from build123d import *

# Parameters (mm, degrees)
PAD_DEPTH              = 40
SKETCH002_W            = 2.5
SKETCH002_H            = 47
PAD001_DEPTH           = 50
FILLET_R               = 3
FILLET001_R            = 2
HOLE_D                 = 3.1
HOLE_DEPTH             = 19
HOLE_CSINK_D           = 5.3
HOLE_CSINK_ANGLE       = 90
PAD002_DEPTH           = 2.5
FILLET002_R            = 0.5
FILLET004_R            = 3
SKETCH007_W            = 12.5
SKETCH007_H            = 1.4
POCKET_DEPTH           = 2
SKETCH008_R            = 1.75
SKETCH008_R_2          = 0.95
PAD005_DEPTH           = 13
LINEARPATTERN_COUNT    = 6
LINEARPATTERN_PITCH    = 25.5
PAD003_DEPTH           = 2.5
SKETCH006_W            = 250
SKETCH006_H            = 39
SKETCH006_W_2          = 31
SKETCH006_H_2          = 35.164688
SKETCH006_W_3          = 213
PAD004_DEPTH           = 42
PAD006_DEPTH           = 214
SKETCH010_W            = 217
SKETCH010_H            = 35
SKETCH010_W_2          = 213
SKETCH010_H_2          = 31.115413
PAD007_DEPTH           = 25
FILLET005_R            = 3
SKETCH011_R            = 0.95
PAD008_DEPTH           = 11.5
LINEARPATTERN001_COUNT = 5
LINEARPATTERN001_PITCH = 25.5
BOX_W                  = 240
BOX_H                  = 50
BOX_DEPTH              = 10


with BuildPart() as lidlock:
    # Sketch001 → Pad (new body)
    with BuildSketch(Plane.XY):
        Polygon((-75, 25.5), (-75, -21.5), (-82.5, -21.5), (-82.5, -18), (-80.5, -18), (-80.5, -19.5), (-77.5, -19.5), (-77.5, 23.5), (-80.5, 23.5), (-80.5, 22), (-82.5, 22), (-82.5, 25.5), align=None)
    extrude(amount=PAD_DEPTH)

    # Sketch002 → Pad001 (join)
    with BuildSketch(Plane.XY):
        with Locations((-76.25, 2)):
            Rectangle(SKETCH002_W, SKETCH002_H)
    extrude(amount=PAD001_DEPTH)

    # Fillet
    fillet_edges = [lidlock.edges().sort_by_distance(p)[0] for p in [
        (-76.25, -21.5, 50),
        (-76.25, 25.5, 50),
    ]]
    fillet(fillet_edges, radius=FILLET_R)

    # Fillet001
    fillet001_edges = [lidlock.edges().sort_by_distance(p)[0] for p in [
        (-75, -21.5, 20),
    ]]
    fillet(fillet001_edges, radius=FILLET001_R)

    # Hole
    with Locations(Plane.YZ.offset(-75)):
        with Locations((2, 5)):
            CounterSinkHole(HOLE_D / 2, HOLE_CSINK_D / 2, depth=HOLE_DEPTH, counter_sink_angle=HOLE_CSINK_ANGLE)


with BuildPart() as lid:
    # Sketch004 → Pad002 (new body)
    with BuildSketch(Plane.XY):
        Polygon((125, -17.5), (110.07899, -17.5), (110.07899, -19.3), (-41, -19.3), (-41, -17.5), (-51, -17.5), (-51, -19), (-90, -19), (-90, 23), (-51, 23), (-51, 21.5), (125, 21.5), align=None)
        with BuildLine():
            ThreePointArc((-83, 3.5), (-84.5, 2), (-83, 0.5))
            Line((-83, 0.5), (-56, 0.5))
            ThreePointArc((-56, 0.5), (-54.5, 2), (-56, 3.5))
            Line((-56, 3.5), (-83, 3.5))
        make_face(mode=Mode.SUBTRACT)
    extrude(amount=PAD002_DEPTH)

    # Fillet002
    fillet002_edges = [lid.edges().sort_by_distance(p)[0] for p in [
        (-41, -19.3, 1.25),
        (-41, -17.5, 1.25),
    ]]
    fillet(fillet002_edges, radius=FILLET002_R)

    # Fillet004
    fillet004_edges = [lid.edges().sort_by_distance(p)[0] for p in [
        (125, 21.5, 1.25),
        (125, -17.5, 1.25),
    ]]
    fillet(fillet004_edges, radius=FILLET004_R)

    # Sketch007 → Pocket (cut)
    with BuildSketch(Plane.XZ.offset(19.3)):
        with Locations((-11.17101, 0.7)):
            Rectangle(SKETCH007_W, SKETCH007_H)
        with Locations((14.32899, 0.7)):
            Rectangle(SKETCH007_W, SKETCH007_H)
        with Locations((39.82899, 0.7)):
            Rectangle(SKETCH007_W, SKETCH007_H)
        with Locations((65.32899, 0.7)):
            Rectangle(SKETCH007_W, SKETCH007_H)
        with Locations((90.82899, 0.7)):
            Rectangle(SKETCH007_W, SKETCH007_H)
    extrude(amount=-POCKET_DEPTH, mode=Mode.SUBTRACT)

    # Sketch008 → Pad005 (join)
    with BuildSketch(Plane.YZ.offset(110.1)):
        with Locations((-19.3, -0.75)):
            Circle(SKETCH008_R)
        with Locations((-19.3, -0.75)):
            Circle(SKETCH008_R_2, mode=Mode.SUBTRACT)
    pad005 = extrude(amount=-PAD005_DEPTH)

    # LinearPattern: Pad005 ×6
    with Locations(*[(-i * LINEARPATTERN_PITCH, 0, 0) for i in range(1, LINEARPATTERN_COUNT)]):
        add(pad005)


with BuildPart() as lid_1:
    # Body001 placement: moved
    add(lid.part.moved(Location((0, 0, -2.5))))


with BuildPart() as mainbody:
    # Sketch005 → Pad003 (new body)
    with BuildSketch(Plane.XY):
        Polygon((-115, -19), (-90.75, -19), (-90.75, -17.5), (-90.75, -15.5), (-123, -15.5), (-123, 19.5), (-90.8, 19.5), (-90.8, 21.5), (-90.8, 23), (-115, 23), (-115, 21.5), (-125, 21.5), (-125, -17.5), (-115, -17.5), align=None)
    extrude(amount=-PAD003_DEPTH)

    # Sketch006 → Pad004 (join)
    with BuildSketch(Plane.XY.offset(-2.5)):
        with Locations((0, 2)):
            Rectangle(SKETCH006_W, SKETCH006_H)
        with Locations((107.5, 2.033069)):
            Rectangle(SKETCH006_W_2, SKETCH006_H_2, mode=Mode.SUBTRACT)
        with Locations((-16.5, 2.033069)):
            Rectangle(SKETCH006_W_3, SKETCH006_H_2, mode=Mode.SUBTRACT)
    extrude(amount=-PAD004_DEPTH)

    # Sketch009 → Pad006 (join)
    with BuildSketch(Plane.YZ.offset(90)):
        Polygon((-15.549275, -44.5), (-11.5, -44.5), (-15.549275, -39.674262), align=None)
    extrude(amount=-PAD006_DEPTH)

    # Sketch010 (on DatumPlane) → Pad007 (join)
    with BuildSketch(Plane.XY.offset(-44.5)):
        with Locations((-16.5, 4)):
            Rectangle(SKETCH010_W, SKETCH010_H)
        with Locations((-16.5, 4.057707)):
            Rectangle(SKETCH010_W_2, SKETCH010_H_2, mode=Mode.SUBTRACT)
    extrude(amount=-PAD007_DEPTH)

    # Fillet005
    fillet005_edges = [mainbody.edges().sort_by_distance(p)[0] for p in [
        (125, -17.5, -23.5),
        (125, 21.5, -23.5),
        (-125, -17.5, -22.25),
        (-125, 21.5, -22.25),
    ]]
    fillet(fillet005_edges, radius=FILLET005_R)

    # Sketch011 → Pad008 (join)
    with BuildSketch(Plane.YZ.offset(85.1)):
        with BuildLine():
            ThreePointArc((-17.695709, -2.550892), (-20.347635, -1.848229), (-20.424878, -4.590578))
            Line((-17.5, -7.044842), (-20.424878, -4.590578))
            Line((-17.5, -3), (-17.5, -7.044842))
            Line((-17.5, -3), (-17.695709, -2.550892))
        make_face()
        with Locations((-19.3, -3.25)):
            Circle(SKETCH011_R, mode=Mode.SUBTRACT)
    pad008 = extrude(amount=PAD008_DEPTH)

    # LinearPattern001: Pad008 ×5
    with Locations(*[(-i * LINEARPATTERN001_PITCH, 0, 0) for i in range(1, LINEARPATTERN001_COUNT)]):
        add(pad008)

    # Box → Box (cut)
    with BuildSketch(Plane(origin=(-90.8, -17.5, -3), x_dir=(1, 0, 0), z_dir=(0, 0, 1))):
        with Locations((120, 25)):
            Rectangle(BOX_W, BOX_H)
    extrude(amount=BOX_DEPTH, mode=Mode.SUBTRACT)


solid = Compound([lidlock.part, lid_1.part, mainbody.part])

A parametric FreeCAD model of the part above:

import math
import FreeCAD as App
import Part
import Sketcher

V = App.Vector
Q = App.Units.Quantity


def edges_at(feature, points):
    """Names of the edges that pass closest to the given points."""
    edges = feature.Shape.Edges
    near = lambda p: min(range(len(edges)), key=lambda i: edges[i].distToShape(Part.Vertex(*p))[0])
    return sorted({f"Edge{near(p) + 1}" for p in points})

doc = App.newDocument("Part")
body = doc.addObject("PartDesign::Body", "Body")

# Sketch on XY plane
sketch1 = body.newObject("Sketcher::SketchObject", "Sketch")
sketch1.AttachmentSupport = (doc.getObject("XY_Plane"), [""])
sketch1.MapMode = "FlatFace"
sketch1.addGeometry([
    Part.LineSegment(V(-75, -21.5, 0), V(-75, 25.5, 0)),  # 0
    Part.LineSegment(V(-75, 25.5, 0), V(-82.5, 25.5, 0)),  # 1
    Part.LineSegment(V(-82.5, 25.5, 0), V(-82.5, 22, 0)),  # 2
    Part.LineSegment(V(-82.5, 22, 0), V(-80.5, 22, 0)),  # 3
    Part.LineSegment(V(-80.5, 22, 0), V(-80.5, 23.5, 0)),  # 4
    Part.LineSegment(V(-80.5, 23.5, 0), V(-77.5, 23.5, 0)),  # 5
    Part.LineSegment(V(-77.5, 23.5, 0), V(-77.5, -19.5, 0)),  # 6
    Part.LineSegment(V(-77.5, -19.5, 0), V(-80.5, -19.5, 0)),  # 7
    Part.LineSegment(V(-80.5, -19.5, 0), V(-80.5, -18, 0)),  # 8
    Part.LineSegment(V(-80.5, -18, 0), V(-82.5, -18, 0)),  # 9
    Part.LineSegment(V(-82.5, -18, 0), V(-82.5, -21.5, 0)),  # 10
    Part.LineSegment(V(-82.5, -21.5, 0), V(-75, -21.5, 0)),  # 11
], False)
sketch1.addConstraint([
    Sketcher.Constraint("Coincident", 0, 2, 1, 1),
    Sketcher.Constraint("Coincident", 1, 2, 2, 1),
    Sketcher.Constraint("Coincident", 2, 2, 3, 1),
    Sketcher.Constraint("Coincident", 3, 2, 4, 1),
    Sketcher.Constraint("Coincident", 4, 2, 5, 1),
    Sketcher.Constraint("Coincident", 5, 2, 6, 1),
    Sketcher.Constraint("Coincident", 6, 2, 7, 1),
    Sketcher.Constraint("Coincident", 7, 2, 8, 1),
    Sketcher.Constraint("Coincident", 8, 2, 9, 1),
    Sketcher.Constraint("Coincident", 9, 2, 10, 1),
    Sketcher.Constraint("Coincident", 10, 2, 11, 1),
    Sketcher.Constraint("Coincident", 11, 2, 0, 1),
    Sketcher.Constraint("Vertical", 0),
    Sketcher.Constraint("Horizontal", 1),
    Sketcher.Constraint("Vertical", 2),
    Sketcher.Constraint("Horizontal", 3),
    Sketcher.Constraint("Vertical", 4),
    Sketcher.Constraint("Horizontal", 5),
    Sketcher.Constraint("Vertical", 6),
    Sketcher.Constraint("Horizontal", 7),
    Sketcher.Constraint("Vertical", 8),
    Sketcher.Constraint("Horizontal", 9),
    Sketcher.Constraint("Vertical", 10),
    Sketcher.Constraint("Horizontal", 11),
    Sketcher.Constraint("Vertical", 4, 2, 7, 2),
    Sketcher.Constraint("Vertical", 2, 2, 9, 2),
    Sketcher.Constraint("Equal", 4, 8),
    Sketcher.Constraint("Equal", 2, 10),
    Sketcher.Constraint("DistanceX", 3, 1, 3, 2, 2.0),
    Sketcher.Constraint("DistanceX", 5, 1, 5, 2, 3.0),
    Sketcher.Constraint("DistanceY", 0, 1, 0, 2, 47.0),
    Sketcher.Constraint("DistanceY", 6, 2, 6, 1, 43.0),
    Sketcher.Constraint("DistanceX", 1, 2, 1, 1, 7.5),
    Sketcher.Constraint("DistanceY", 2, 2, 2, 1, 3.5),
    Sketcher.Constraint("DistanceX", 0, 2, -1, 1, 75.0),
    Sketcher.Constraint("DistanceY", -1, 1, 2, 2, 22.0),
])
pad1 = body.newObject("PartDesign::Pad", "Pad")
pad1.Profile = sketch1
pad1.Length = 40

# Sketch on XY plane
sketch2 = body.newObject("Sketcher::SketchObject", "Sketch001")
sketch2.AttachmentSupport = (doc.getObject("XY_Plane"), [""])
sketch2.MapMode = "FlatFace"
sketch2.addGeometry([
    Part.LineSegment(V(-77.5, 25.5, 0), V(-77.5, -21.5, 0)),
    Part.LineSegment(V(-77.5, -21.5, 0), V(-75, -21.5, 0)),
    Part.LineSegment(V(-75, -21.5, 0), V(-75, 25.5, 0)),
    Part.LineSegment(V(-75, 25.5, 0), V(-77.5, 25.5, 0)),
], False)
sketch2.addConstraint([
    Sketcher.Constraint("Coincident", 0, 2, 1, 1),
    Sketcher.Constraint("Coincident", 1, 2, 2, 1),
    Sketcher.Constraint("Coincident", 2, 2, 3, 1),
    Sketcher.Constraint("Coincident", 3, 2, 0, 1),
    Sketcher.Constraint("Vertical", 0),
    Sketcher.Constraint("Horizontal", 1),
    Sketcher.Constraint("Vertical", 2),
    Sketcher.Constraint("Horizontal", 3),
    Sketcher.Constraint("DistanceY", 0, 2, 0, 1, 47.0),
    Sketcher.Constraint("DistanceX", 1, 1, 1, 2, 2.5),
    Sketcher.Constraint("DistanceX", 1, 2, -1, 1, 75.0),
    Sketcher.Constraint("DistanceY", 0, 2, -1, 1, 21.5),
])
pad2 = body.newObject("PartDesign::Pad", "Pad001")
pad2.Profile = sketch2
pad2.Length = 50
doc.recompute()

fillet = body.newObject("PartDesign::Fillet", "Fillet")
fillet.Base = (pad2, edges_at(pad2, [(-76.25, -21.5, 50), (-76.25, 25.5, 50)]))
fillet.Radius = 3
doc.recompute()

fillet2 = body.newObject("PartDesign::Fillet", "Fillet001")
fillet2.Base = (fillet, edges_at(fillet, [(-75, -21.5, 23.5)]))
fillet2.Radius = 2

# Sketch on YZ plane
sketch3 = body.newObject("Sketcher::SketchObject", "Sketch002")
sketch3.AttachmentSupport = (doc.getObject("YZ_Plane"), [""])
sketch3.MapMode = "FlatFace"
sketch3.AttachmentOffset = App.Placement(V(0, 0, -75), App.Rotation())
sketch3.addGeometry(Part.Circle(V(2, 5, 0), V(0, 0, 1), 1.55), False)
sketch3.addConstraint([
    Sketcher.Constraint("Diameter", 0, 3.1),
    Sketcher.Constraint("DistanceX", -1, 1, 0, 3, 2.0),
    Sketcher.Constraint("DistanceY", -1, 1, 0, 3, 5.0),
])
doc.recompute()
hole = body.newObject("PartDesign::Hole", "Hole")
hole.Profile = sketch3
hole.ThreadType = "None"
hole.Diameter = 3.1
hole.DepthType = "Dimension"
hole.Depth = 19
hole.DrillPoint = "Flat"
hole.HoleCutType = "Countersink"
hole.HoleCutDiameter = 5.3
hole.HoleCutCountersinkAngle = 90
body2 = doc.addObject("PartDesign::Body", "Body001")

# Sketch on XY plane
sketch4 = body2.newObject("Sketcher::SketchObject", "Sketch003")
sketch4.AttachmentSupport = (doc.getObject("XY_Plane001"), [""])
sketch4.MapMode = "FlatFace"
sketch4.addGeometry([
    Part.LineSegment(V(110.07899, -17.5, 0), V(125, -17.5, 0)),  # 0
    Part.LineSegment(V(125, -17.5, 0), V(125, 21.5, 0)),  # 1
    Part.LineSegment(V(125, 21.5, 0), V(-51, 21.5, 0)),  # 2
    Part.LineSegment(V(-51, 21.5, 0), V(-51, 23, 0)),  # 3
    Part.LineSegment(V(-51, 23, 0), V(-90, 23, 0)),  # 4
    Part.LineSegment(V(-90, 23, 0), V(-90, -19, 0)),  # 5
    Part.LineSegment(V(-90, -19, 0), V(-51, -19, 0)),  # 6
    Part.LineSegment(V(-51, -19, 0), V(-51, -17.5, 0)),  # 7
    Part.LineSegment(V(-51, -17.5, 0), V(-41, -17.5, 0)),  # 8
    Part.LineSegment(V(-41, -17.5, 0), V(-41, -19.3, 0)),  # 9
    Part.LineSegment(V(-41, -19.3, 0), V(110.07899, -19.3, 0)),  # 10
    Part.LineSegment(V(110.07899, -19.3, 0), V(110.07899, -17.5, 0)),  # 11
    Part.LineSegment(V(-83, 3.5, 0), V(-56, 3.5, 0)),  # 12
    Part.ArcOfCircle(Part.Circle(V(-56, 2, 0), V(0, 0, 1), 1.5), math.radians(-90), math.radians(90)),  # 13
    Part.LineSegment(V(-56, 0.5, 0), V(-83, 0.5, 0)),  # 14
    Part.ArcOfCircle(Part.Circle(V(-83, 2, 0), V(0, 0, 1), 1.5), math.radians(90), math.radians(270)),  # 15
], False)
sketch4.addConstraint([
    Sketcher.Constraint("Coincident", 0, 2, 1, 1),
    Sketcher.Constraint("Coincident", 1, 2, 2, 1),
    Sketcher.Constraint("Coincident", 2, 2, 3, 1),
    Sketcher.Constraint("Coincident", 3, 2, 4, 1),
    Sketcher.Constraint("Coincident", 4, 2, 5, 1),
    Sketcher.Constraint("Coincident", 5, 2, 6, 1),
    Sketcher.Constraint("Coincident", 6, 2, 7, 1),
    Sketcher.Constraint("Coincident", 7, 2, 8, 1),
    Sketcher.Constraint("Coincident", 8, 2, 9, 1),
    Sketcher.Constraint("Coincident", 9, 2, 10, 1),
    Sketcher.Constraint("Coincident", 10, 2, 11, 1),
    Sketcher.Constraint("Coincident", 11, 2, 0, 1),
    Sketcher.Constraint("Tangent", 12, 2, 13, 2),
    Sketcher.Constraint("Tangent", 13, 1, 14, 1),
    Sketcher.Constraint("Tangent", 14, 2, 15, 2),
    Sketcher.Constraint("Tangent", 15, 1, 12, 1),
    Sketcher.Constraint("Horizontal", 0),
    Sketcher.Constraint("Vertical", 1),
    Sketcher.Constraint("Horizontal", 2),
    Sketcher.Constraint("Vertical", 3),
    Sketcher.Constraint("Horizontal", 4),
    Sketcher.Constraint("Vertical", 5),
    Sketcher.Constraint("Horizontal", 6),
    Sketcher.Constraint("Vertical", 7),
    Sketcher.Constraint("Horizontal", 8),
    Sketcher.Constraint("Vertical", 9),
    Sketcher.Constraint("Horizontal", 10),
    Sketcher.Constraint("Vertical", 11),
    Sketcher.Constraint("Horizontal", 12),
    Sketcher.Constraint("Horizontal", 14),
    Sketcher.Constraint("Horizontal", 0, 2, 7, 2),
    Sketcher.Constraint("Vertical", 3, 2, 6, 2),
    Sketcher.Constraint("Equal", 6, 1),
    Sketcher.Constraint("Equal", 3, 7),
    Sketcher.Constraint("Radius", 13, 1.5),
    Sketcher.Constraint("DistanceX", 2, 2, 2, 1, 176.0),
    Sketcher.Constraint("DistanceX", 4, 2, 4, 1, 39.0),
    Sketcher.Constraint("DistanceX", 8, 1, 8, 2, 10.0),
    Sketcher.Constraint("DistanceX", 12, 1, 12, 2, 27.0),
    Sketcher.Constraint("DistanceY", 5, 2, 5, 1, 42.0),
    Sketcher.Constraint("DistanceY", 9, 2, 9, 1, 1.8),
    Sketcher.Constraint("DistanceX", 13, 3, -1, 1, 56.0),
    Sketcher.Constraint("DistanceY", -1, 1, 13, 3, 2.0),
    Sketcher.Constraint("DistanceX", -1, 1, 0, 2, 125.0),
    Sketcher.Constraint("DistanceY", -1, 1, 3, 2, 23.0),
    Sketcher.Constraint("DistanceX", 0, 1, 0, 2, 14.92101),
])
pad3 = body2.newObject("PartDesign::Pad", "Pad002")
pad3.Profile = sketch4
pad3.Length = 2.5
doc.recompute()

fillet3 = body2.newObject("PartDesign::Fillet", "Fillet002")
fillet3.Base = (pad3, edges_at(pad3, [(-41, -19.3, 1.25), (-41, -17.5, 1.25)]))
fillet3.Radius = 0.5
doc.recompute()

fillet4 = body2.newObject("PartDesign::Fillet", "Fillet003")
fillet4.Base = (fillet3, edges_at(fillet3, [(125, 21.5, 1.25), (125, -17.5, 1.25)]))
fillet4.Radius = 3

# Sketch on XZ plane
sketch5 = body2.newObject("Sketcher::SketchObject", "Sketch004")
sketch5.AttachmentSupport = (doc.getObject("XZ_Plane001"), [""])
sketch5.MapMode = "FlatFace"
sketch5.AttachmentOffset = App.Placement(V(0, 0, 19.3), App.Rotation())
sketch5.addGeometry([
    Part.LineSegment(V(-17.42101, 1.4, 0), V(-17.42101, 0, 0)),  # 0
    Part.LineSegment(V(-17.42101, 0, 0), V(-4.92101, 0, 0)),  # 1
    Part.LineSegment(V(-4.92101, 0, 0), V(-4.92101, 1.4, 0)),  # 2
    Part.LineSegment(V(-4.92101, 1.4, 0), V(-17.42101, 1.4, 0)),  # 3
    Part.LineSegment(V(8.07899, 1.4, 0), V(8.07899, 0, 0)),  # 4
    Part.LineSegment(V(8.07899, 0, 0), V(20.57899, 0, 0)),  # 5
    Part.LineSegment(V(20.57899, 0, 0), V(20.57899, 1.4, 0)),  # 6
    Part.LineSegment(V(20.57899, 1.4, 0), V(8.07899, 1.4, 0)),  # 7
    Part.LineSegment(V(33.57899, 1.4, 0), V(33.57899, 0, 0)),  # 8
    Part.LineSegment(V(33.57899, 0, 0), V(46.07899, 0, 0)),  # 9
    Part.LineSegment(V(46.07899, 0, 0), V(46.07899, 1.4, 0)),  # 10
    Part.LineSegment(V(46.07899, 1.4, 0), V(33.57899, 1.4, 0)),  # 11
    Part.LineSegment(V(59.07899, 1.4, 0), V(59.07899, 0, 0)),  # 12
    Part.LineSegment(V(59.07899, 0, 0), V(71.57899, 0, 0)),  # 13
    Part.LineSegment(V(71.57899, 0, 0), V(71.57899, 1.4, 0)),  # 14
    Part.LineSegment(V(71.57899, 1.4, 0), V(59.07899, 1.4, 0)),  # 15
    Part.LineSegment(V(84.57899, 1.4, 0), V(84.57899, 0, 0)),  # 16
    Part.LineSegment(V(84.57899, 0, 0), V(97.07899, 0, 0)),  # 17
    Part.LineSegment(V(97.07899, 0, 0), V(97.07899, 1.4, 0)),  # 18
    Part.LineSegment(V(97.07899, 1.4, 0), V(84.57899, 1.4, 0)),  # 19
], False)
sketch5.addConstraint([
    Sketcher.Constraint("Coincident", 0, 2, 1, 1),
    Sketcher.Constraint("Coincident", 1, 2, 2, 1),
    Sketcher.Constraint("Coincident", 2, 2, 3, 1),
    Sketcher.Constraint("Coincident", 3, 2, 0, 1),
    Sketcher.Constraint("Coincident", 4, 2, 5, 1),
    Sketcher.Constraint("Coincident", 5, 2, 6, 1),
    Sketcher.Constraint("Coincident", 6, 2, 7, 1),
    Sketcher.Constraint("Coincident", 7, 2, 4, 1),
    Sketcher.Constraint("Coincident", 8, 2, 9, 1),
    Sketcher.Constraint("Coincident", 9, 2, 10, 1),
    Sketcher.Constraint("Coincident", 10, 2, 11, 1),
    Sketcher.Constraint("Coincident", 11, 2, 8, 1),
    Sketcher.Constraint("Coincident", 12, 2, 13, 1),
    Sketcher.Constraint("Coincident", 13, 2, 14, 1),
    Sketcher.Constraint("Coincident", 14, 2, 15, 1),
    Sketcher.Constraint("Coincident", 15, 2, 12, 1),
    Sketcher.Constraint("Coincident", 16, 2, 17, 1),
    Sketcher.Constraint("Coincident", 17, 2, 18, 1),
    Sketcher.Constraint("Coincident", 18, 2, 19, 1),
    Sketcher.Constraint("Coincident", 19, 2, 16, 1),
    Sketcher.Constraint("Vertical", 0),
    Sketcher.Constraint("Horizontal", 1),
    Sketcher.Constraint("Vertical", 2),
    Sketcher.Constraint("Horizontal", 3),
    Sketcher.Constraint("Vertical", 4),
    Sketcher.Constraint("Horizontal", 5),
    Sketcher.Constraint("Vertical", 6),
    Sketcher.Constraint("Horizontal", 7),
    Sketcher.Constraint("Vertical", 8),
    Sketcher.Constraint("Horizontal", 9),
    Sketcher.Constraint("Vertical", 10),
    Sketcher.Constraint("Horizontal", 11),
    Sketcher.Constraint("Vertical", 12),
    Sketcher.Constraint("Horizontal", 13),
    Sketcher.Constraint("Vertical", 14),
    Sketcher.Constraint("Horizontal", 15),
    Sketcher.Constraint("Vertical", 16),
    Sketcher.Constraint("Horizontal", 17),
    Sketcher.Constraint("Vertical", 18),
    Sketcher.Constraint("Horizontal", 19),
    Sketcher.Constraint("PointOnObject", 0, 2, -1),
    Sketcher.Constraint("PointOnObject", 4, 2, -1),
    Sketcher.Constraint("PointOnObject", 8, 2, -1),
    Sketcher.Constraint("PointOnObject", 12, 2, -1),
    Sketcher.Constraint("PointOnObject", 16, 2, -1),
    Sketcher.Constraint("Horizontal", 3, 2, 6, 2),
    Sketcher.Constraint("Horizontal", 7, 2, 10, 2),
    Sketcher.Constraint("Horizontal", 11, 2, 14, 2),
    Sketcher.Constraint("Horizontal", 15, 2, 18, 2),
    Sketcher.Constraint("Equal", 3, 5),
    Sketcher.Constraint("Equal", 7, 9),
    Sketcher.Constraint("Equal", 11, 13),
    Sketcher.Constraint("Equal", 15, 17),
    Sketcher.Constraint("DistanceX", 1, 1, 1, 2, 12.5),
    Sketcher.Constraint("DistanceY", 0, 2, 0, 1, 1.4),
    Sketcher.Constraint("DistanceX", 1, 2, 4, 2, 13.0),
    Sketcher.Constraint("DistanceX", 5, 2, 8, 2, 13.0),
    Sketcher.Constraint("DistanceX", 9, 2, 12, 2, 13.0),
    Sketcher.Constraint("DistanceX", 13, 2, 16, 2, 13.0),
    Sketcher.Constraint("DistanceX", 0, 2, -1, 1, 17.42101),
])
pocket1 = body2.newObject("PartDesign::Pocket", "Pocket")
pocket1.Profile = sketch5
pocket1.Length = 2

# Sketch on YZ plane
sketch6 = body2.newObject("Sketcher::SketchObject", "Sketch005")
sketch6.AttachmentSupport = (doc.getObject("YZ_Plane001"), [""])
sketch6.MapMode = "FlatFace"
sketch6.AttachmentOffset = App.Placement(V(0, 0, 110.1), App.Rotation())
sketch6.addGeometry([
    Part.Circle(V(-19.3, -0.75, 0), V(0, 0, 1), 1.75),
    Part.Circle(V(-19.3, -0.75, 0), V(0, 0, 1), 0.95),
], False)
sketch6.addConstraint([
    Sketcher.Constraint("Coincident", 1, 3, 0, 3),
    Sketcher.Constraint("Diameter", 0, 3.5),
    Sketcher.Constraint("Diameter", 1, 1.9),
    Sketcher.Constraint("DistanceX", 0, 3, -1, 1, 19.3),
    Sketcher.Constraint("DistanceY", 0, 3, -1, 1, 0.75),
])
pad4 = body2.newObject("PartDesign::Pad", "Pad003")
pad4.Profile = sketch6
pad4.Length = 13
pad4.Reversed = True
doc.recompute()

linearpattern = body2.newObject("PartDesign::LinearPattern", "LinearPattern")
linearpattern.Originals = [pad4]
linearpattern.Direction = (doc.getObject("X_Axis001"), [""])
linearpattern.Mode = "offset"
linearpattern.Offset = 25.5
linearpattern.Occurrences = 6
linearpattern.Reversed = True
body2.Tip = linearpattern
body3 = doc.addObject("PartDesign::Body", "Body002")
doc.recompute()

body2.Placement = App.Placement(V(0, 0, -2.5), App.Rotation(V(0, 0, 1), 0))
boolean = body3.newObject("PartDesign::Boolean", "Boolean")
boolean.Type = "Fuse"
boolean.addObjects([body2])
body4 = doc.addObject("PartDesign::Body", "Body003")

# Sketch on XY plane
sketch7 = body4.newObject("Sketcher::SketchObject", "Sketch006")
sketch7.AttachmentSupport = (doc.getObject("XY_Plane003"), [""])
sketch7.MapMode = "FlatFace"
sketch7.addGeometry([
    Part.LineSegment(V(-115, -19, 0), V(-90.75, -19, 0)),  # 0
    Part.LineSegment(V(-90.75, -19, 0), V(-90.75, -15.5, 0)),  # 1
    Part.LineSegment(V(-90.75, -15.5, 0), V(-123, -15.5, 0)),  # 2
    Part.LineSegment(V(-123, -15.5, 0), V(-123, 19.5, 0)),  # 3
    Part.LineSegment(V(-123, 19.5, 0), V(-90.8, 19.5, 0)),  # 4
    Part.LineSegment(V(-90.8, 19.5, 0), V(-90.8, 23, 0)),  # 5
    Part.LineSegment(V(-90.8, 23, 0), V(-115, 23, 0)),  # 6
    Part.LineSegment(V(-115, 23, 0), V(-115, 21.5, 0)),  # 7
    Part.LineSegment(V(-115, 21.5, 0), V(-125, 21.5, 0)),  # 8
    Part.LineSegment(V(-125, 21.5, 0), V(-125, -17.5, 0)),  # 9
    Part.LineSegment(V(-125, -17.5, 0), V(-115, -17.5, 0)),  # 10
    Part.LineSegment(V(-115, -17.5, 0), V(-115, -19, 0)),  # 11
], False)
sketch7.addConstraint([
    Sketcher.Constraint("Coincident", 0, 2, 1, 1),
    Sketcher.Constraint("Coincident", 1, 2, 2, 1),
    Sketcher.Constraint("Coincident", 2, 2, 3, 1),
    Sketcher.Constraint("Coincident", 3, 2, 4, 1),
    Sketcher.Constraint("Coincident", 4, 2, 5, 1),
    Sketcher.Constraint("Coincident", 5, 2, 6, 1),
    Sketcher.Constraint("Coincident", 6, 2, 7, 1),
    Sketcher.Constraint("Coincident", 7, 2, 8, 1),
    Sketcher.Constraint("Coincident", 8, 2, 9, 1),
    Sketcher.Constraint("Coincident", 9, 2, 10, 1),
    Sketcher.Constraint("Coincident", 10, 2, 11, 1),
    Sketcher.Constraint("Coincident", 11, 2, 0, 1),
    Sketcher.Constraint("Horizontal", 0),
    Sketcher.Constraint("Vertical", 1),
    Sketcher.Constraint("Horizontal", 2),
    Sketcher.Constraint("Vertical", 3),
    Sketcher.Constraint("Horizontal", 4),
    Sketcher.Constraint("Vertical", 5),
    Sketcher.Constraint("Horizontal", 6),
    Sketcher.Constraint("Vertical", 7),
    Sketcher.Constraint("Horizontal", 8),
    Sketcher.Constraint("Vertical", 9),
    Sketcher.Constraint("Horizontal", 10),
    Sketcher.Constraint("Vertical", 11),
    Sketcher.Constraint("Vertical", 7, 2, 10, 2),
    Sketcher.Constraint("Equal", 1, 5),
    Sketcher.Constraint("Equal", 7, 11),
    Sketcher.Constraint("DistanceX", 8, 2, 8, 1, 10.0),
    Sketcher.Constraint("DistanceY", 3, 1, 3, 2, 35.0),
    Sketcher.Constraint("DistanceY", 9, 2, 9, 1, 39.0),
    Sketcher.Constraint("DistanceX", 4, 1, 4, 2, 32.2),
    Sketcher.Constraint("DistanceX", 6, 2, 6, 1, 24.2),
    Sketcher.Constraint("DistanceY", 1, 1, 1, 2, 3.5),
    Sketcher.Constraint("DistanceY", 0, 2, -1, 1, 19.0),
    Sketcher.Constraint("DistanceX", 2, 2, -1, 1, 123.0),
    Sketcher.Constraint("DistanceX", 0, 1, 0, 2, 24.25),
])
pad5 = body4.newObject("PartDesign::Pad", "Pad004")
pad5.Profile = sketch7
pad5.Length = 2.5
pad5.Reversed = True

# Sketch on XY plane
sketch8 = body4.newObject("Sketcher::SketchObject", "Sketch007")
sketch8.AttachmentSupport = (doc.getObject("XY_Plane003"), [""])
sketch8.MapMode = "FlatFace"
sketch8.AttachmentOffset = App.Placement(V(0, 0, -2.5), App.Rotation())
sketch8.addGeometry([
    Part.LineSegment(V(-125, 21.5, 0), V(-125, -17.5, 0)),  # 0
    Part.LineSegment(V(-125, -17.5, 0), V(125, -17.5, 0)),  # 1
    Part.LineSegment(V(125, -17.5, 0), V(125, 21.5, 0)),  # 2
    Part.LineSegment(V(125, 21.5, 0), V(-125, 21.5, 0)),  # 3
    Part.LineSegment(V(90, -15.549275, 0), V(-123, -15.549275, 0)),  # 4
    Part.LineSegment(V(-123, -15.549275, 0), V(-123, 19.615413, 0)),  # 5
    Part.LineSegment(V(-123, 19.615413, 0), V(90, 19.615413, 0)),  # 6
    Part.LineSegment(V(90, 19.615413, 0), V(90, -15.549275, 0)),  # 7
    Part.LineSegment(V(123, -15.549275, 0), V(92, -15.549275, 0)),  # 8
    Part.LineSegment(V(92, -15.549275, 0), V(92, 19.615413, 0)),  # 9
    Part.LineSegment(V(92, 19.615413, 0), V(123, 19.615413, 0)),  # 10
    Part.LineSegment(V(123, 19.615413, 0), V(123, -15.549275, 0)),  # 11
], False)
sketch8.addConstraint([
    Sketcher.Constraint("Coincident", 0, 2, 1, 1),
    Sketcher.Constraint("Coincident", 1, 2, 2, 1),
    Sketcher.Constraint("Coincident", 2, 2, 3, 1),
    Sketcher.Constraint("Coincident", 3, 2, 0, 1),
    Sketcher.Constraint("Coincident", 4, 2, 5, 1),
    Sketcher.Constraint("Coincident", 5, 2, 6, 1),
    Sketcher.Constraint("Coincident", 6, 2, 7, 1),
    Sketcher.Constraint("Coincident", 7, 2, 4, 1),
    Sketcher.Constraint("Coincident", 8, 2, 9, 1),
    Sketcher.Constraint("Coincident", 9, 2, 10, 1),
    Sketcher.Constraint("Coincident", 10, 2, 11, 1),
    Sketcher.Constraint("Coincident", 11, 2, 8, 1),
    Sketcher.Constraint("Vertical", 0),
    Sketcher.Constraint("Horizontal", 1),
    Sketcher.Constraint("Vertical", 2),
    Sketcher.Constraint("Horizontal", 3),
    Sketcher.Constraint("Horizontal", 4),
    Sketcher.Constraint("Vertical", 5),
    Sketcher.Constraint("Horizontal", 6),
    Sketcher.Constraint("Vertical", 7),
    Sketcher.Constraint("Horizontal", 8),
    Sketcher.Constraint("Vertical", 9),
    Sketcher.Constraint("Horizontal", 10),
    Sketcher.Constraint("Vertical", 11),
    Sketcher.Constraint("Symmetric", 5, 2, 10, 2, -2),
    Sketcher.Constraint("Horizontal", 7, 2, 8, 2),
    Sketcher.Constraint("DistanceX", 1, 1, 1, 2, 250.0),
    Sketcher.Constraint("DistanceX", 4, 2, 4, 1, 213.0),
    Sketcher.Constraint("DistanceX", 8, 2, 8, 1, 31.0),
    Sketcher.Constraint("DistanceY", 0, 2, 0, 1, 39.0),
    Sketcher.Constraint("DistanceX", 0, 2, -1, 1, 125.0),
    Sketcher.Constraint("DistanceX", 4, 2, -1, 1, 123.0),
    Sketcher.Constraint("DistanceY", 0, 2, -1, 1, 17.5),
    Sketcher.Constraint("DistanceY", 5, 1, 5, 2, 35.164688),
    Sketcher.Constraint("DistanceY", 4, 2, -1, 1, 15.549275),
])
pad6 = body4.newObject("PartDesign::Pad", "Pad005")
pad6.Profile = sketch8
pad6.Length = 42
pad6.Reversed = True

# Sketch on YZ plane
sketch9 = body4.newObject("Sketcher::SketchObject", "Sketch008")
sketch9.AttachmentSupport = (doc.getObject("YZ_Plane003"), [""])
sketch9.MapMode = "FlatFace"
sketch9.AttachmentOffset = App.Placement(V(0, 0, 90), App.Rotation())
sketch9.addGeometry([
    Part.LineSegment(V(-15.549275, -44.5, 0), V(-11.5, -44.5, 0)),
    Part.LineSegment(V(-11.5, -44.5, 0), V(-15.549275, -39.674262, 0)),
    Part.LineSegment(V(-15.549275, -39.674262, 0), V(-15.549275, -44.5, 0)),
], False)
sketch9.addConstraint([
    Sketcher.Constraint("Coincident", 0, 2, 1, 1),
    Sketcher.Constraint("Coincident", 1, 2, 2, 1),
    Sketcher.Constraint("Coincident", 2, 2, 0, 1),
    Sketcher.Constraint("Horizontal", 0),
    Sketcher.Constraint("Vertical", 2),
    Sketcher.Constraint("Angle", 1, Q("130 deg")),
    Sketcher.Constraint("DistanceX", 0, 2, -1, 1, 11.5),
    Sketcher.Constraint("DistanceY", 0, 2, -1, 1, 44.5),
    Sketcher.Constraint("DistanceY", 2, 2, 2, 1, 4.825738),
])
pad7 = body4.newObject("PartDesign::Pad", "Pad006")
pad7.Profile = sketch9
pad7.Length = 214
pad7.Reversed = True

# Sketch on XY plane
sketch10 = body4.newObject("Sketcher::SketchObject", "Sketch009")
sketch10.AttachmentSupport = (doc.getObject("XY_Plane003"), [""])
sketch10.MapMode = "FlatFace"
sketch10.AttachmentOffset = App.Placement(V(0, 0, -44.5), App.Rotation())
sketch10.addGeometry([
    Part.LineSegment(V(-125, 21.5, 0), V(-125, -13.5, 0)),  # 0
    Part.LineSegment(V(-125, -13.5, 0), V(92, -13.5, 0)),  # 1
    Part.LineSegment(V(92, -13.5, 0), V(92, 21.5, 0)),  # 2
    Part.LineSegment(V(92, 21.5, 0), V(-125, 21.5, 0)),  # 3
    Part.LineSegment(V(90, -11.499999, 0), V(-123, -11.499999, 0)),  # 4
    Part.LineSegment(V(-123, -11.499999, 0), V(-123, 19.615413, 0)),  # 5
    Part.LineSegment(V(-123, 19.615413, 0), V(90, 19.615413, 0)),  # 6
    Part.LineSegment(V(90, 19.615413, 0), V(90, -11.499999, 0)),  # 7
], False)
sketch10.addConstraint([
    Sketcher.Constraint("Coincident", 0, 2, 1, 1),
    Sketcher.Constraint("Coincident", 1, 2, 2, 1),
    Sketcher.Constraint("Coincident", 2, 2, 3, 1),
    Sketcher.Constraint("Coincident", 3, 2, 0, 1),
    Sketcher.Constraint("Coincident", 4, 2, 5, 1),
    Sketcher.Constraint("Coincident", 5, 2, 6, 1),
    Sketcher.Constraint("Coincident", 6, 2, 7, 1),
    Sketcher.Constraint("Coincident", 7, 2, 4, 1),
    Sketcher.Constraint("Vertical", 0),
    Sketcher.Constraint("Horizontal", 1),
    Sketcher.Constraint("Vertical", 2),
    Sketcher.Constraint("Horizontal", 3),
    Sketcher.Constraint("Horizontal", 4),
    Sketcher.Constraint("Vertical", 5),
    Sketcher.Constraint("Horizontal", 6),
    Sketcher.Constraint("Vertical", 7),
    Sketcher.Constraint("DistanceX", 1, 1, 1, 2, 217.0),
    Sketcher.Constraint("DistanceX", 4, 2, 4, 1, 213.0),
    Sketcher.Constraint("DistanceY", 0, 2, 0, 1, 35.0),
    Sketcher.Constraint("DistanceX", 0, 2, -1, 1, 125.0),
    Sketcher.Constraint("DistanceX", 4, 2, -1, 1, 123.0),
    Sketcher.Constraint("DistanceY", 0, 2, 4, 2, 2.000001),
    Sketcher.Constraint("DistanceY", 0, 2, -1, 1, 13.5),
    Sketcher.Constraint("DistanceY", 5, 1, 5, 2, 31.115413),
])
pad8 = body4.newObject("PartDesign::Pad", "Pad007")
pad8.Profile = sketch10
pad8.Length = 25
pad8.Reversed = True
doc.recompute()

fillet5 = body4.newObject("PartDesign::Fillet", "Fillet004")
fillet5.Base = (pad8, edges_at(pad8, [
    (125, -17.5, -23.5),
    (125, 21.5, -23.5),
    (-125, -17.5, -22.25),
    (-125, 21.5, -34.75),
]))
fillet5.Radius = 3

# Sketch on YZ plane
sketch11 = body4.newObject("Sketcher::SketchObject", "Sketch010")
sketch11.AttachmentSupport = (doc.getObject("YZ_Plane003"), [""])
sketch11.MapMode = "FlatFace"
sketch11.AttachmentOffset = App.Placement(V(0, 0, 85.1), App.Rotation())
sketch11.addGeometry([
    Part.ArcOfCircle(Part.Circle(V(-19.3, -3.25, 0), V(0, 0, 1), 1.75), math.radians(23.546307), math.radians(230.000013)),  # 0
    Part.LineSegment(V(-20.424878, -4.590578, 0), V(-17.5, -7.044842, 0)),  # 1
    Part.LineSegment(V(-17.5, -7.044842, 0), V(-17.5, -3, 0)),  # 2
    Part.LineSegment(V(-17.5, -3, 0), V(-17.695709, -2.550892, 0)),  # 3
    Part.Circle(V(-19.3, -3.25, 0), V(0, 0, 1), 0.95),  # 4
], False)
sketch11.addConstraint([
    Sketcher.Constraint("Tangent", 0, 2, 1, 1),
    Sketcher.Constraint("Coincident", 1, 2, 2, 1),
    Sketcher.Constraint("Coincident", 2, 2, 3, 1),
    Sketcher.Constraint("Tangent", 3, 2, 0, 1),
    Sketcher.Constraint("Vertical", 2),
    Sketcher.Constraint("Coincident", 4, 3, 0, 3),
    Sketcher.Constraint("Diameter", 4, 1.9),
    Sketcher.Constraint("Angle", 1, Q("-39.999999 deg")),
    Sketcher.Constraint("Radius", 0, 1.75),
    Sketcher.Constraint("DistanceY", 2, 2, -1, 1, 3.0),
    Sketcher.Constraint("DistanceX", 0, 3, -1, 1, 19.3),
    Sketcher.Constraint("DistanceX", 1, 2, -1, 1, 17.5),
    Sketcher.Constraint("DistanceY", 0, 3, -1, 1, 3.25),
])
pad9 = body4.newObject("PartDesign::Pad", "Pad008")
pad9.Profile = sketch11
pad9.Length = 11.5
doc.recompute()

linearpattern2 = body4.newObject("PartDesign::LinearPattern", "LinearPattern001")
linearpattern2.Originals = [pad9]
linearpattern2.Direction = (doc.getObject("X_Axis003"), [""])
linearpattern2.Mode = "offset"
linearpattern2.Offset = 25.5
linearpattern2.Occurrences = 5
linearpattern2.Reversed = True
body4.Tip = linearpattern2

# Sketch on XY plane
sketch12 = body4.newObject("Sketcher::SketchObject", "Sketch011")
sketch12.AttachmentSupport = (doc.getObject("XY_Plane003"), [""])
sketch12.MapMode = "FlatFace"
sketch12.AttachmentOffset = App.Placement(V(0, 0, -3), App.Rotation())
sketch12.addGeometry([
    Part.LineSegment(V(-90.8, 32.5, 0), V(-90.8, -17.5, 0)),
    Part.LineSegment(V(-90.8, -17.5, 0), V(149.2, -17.5, 0)),
    Part.LineSegment(V(149.2, -17.5, 0), V(149.2, 32.5, 0)),
    Part.LineSegment(V(149.2, 32.5, 0), V(-90.8, 32.5, 0)),
], False)
sketch12.addConstraint([
    Sketcher.Constraint("Coincident", 0, 2, 1, 1),
    Sketcher.Constraint("Coincident", 1, 2, 2, 1),
    Sketcher.Constraint("Coincident", 2, 2, 3, 1),
    Sketcher.Constraint("Coincident", 3, 2, 0, 1),
    Sketcher.Constraint("Vertical", 0),
    Sketcher.Constraint("Horizontal", 1),
    Sketcher.Constraint("Vertical", 2),
    Sketcher.Constraint("Horizontal", 3),
    Sketcher.Constraint("DistanceX", 1, 1, 1, 2, 240.0),
    Sketcher.Constraint("DistanceY", 0, 2, 0, 1, 50.0),
    Sketcher.Constraint("DistanceX", 0, 2, -1, 1, 90.8),
    Sketcher.Constraint("DistanceY", 0, 2, -1, 1, 17.5),
])
pocket2 = body4.newObject("PartDesign::Pocket", "Pocket001")
pocket2.Profile = sketch12
pocket2.Length = 10
pocket2.Reversed = True

doc.recompute()
